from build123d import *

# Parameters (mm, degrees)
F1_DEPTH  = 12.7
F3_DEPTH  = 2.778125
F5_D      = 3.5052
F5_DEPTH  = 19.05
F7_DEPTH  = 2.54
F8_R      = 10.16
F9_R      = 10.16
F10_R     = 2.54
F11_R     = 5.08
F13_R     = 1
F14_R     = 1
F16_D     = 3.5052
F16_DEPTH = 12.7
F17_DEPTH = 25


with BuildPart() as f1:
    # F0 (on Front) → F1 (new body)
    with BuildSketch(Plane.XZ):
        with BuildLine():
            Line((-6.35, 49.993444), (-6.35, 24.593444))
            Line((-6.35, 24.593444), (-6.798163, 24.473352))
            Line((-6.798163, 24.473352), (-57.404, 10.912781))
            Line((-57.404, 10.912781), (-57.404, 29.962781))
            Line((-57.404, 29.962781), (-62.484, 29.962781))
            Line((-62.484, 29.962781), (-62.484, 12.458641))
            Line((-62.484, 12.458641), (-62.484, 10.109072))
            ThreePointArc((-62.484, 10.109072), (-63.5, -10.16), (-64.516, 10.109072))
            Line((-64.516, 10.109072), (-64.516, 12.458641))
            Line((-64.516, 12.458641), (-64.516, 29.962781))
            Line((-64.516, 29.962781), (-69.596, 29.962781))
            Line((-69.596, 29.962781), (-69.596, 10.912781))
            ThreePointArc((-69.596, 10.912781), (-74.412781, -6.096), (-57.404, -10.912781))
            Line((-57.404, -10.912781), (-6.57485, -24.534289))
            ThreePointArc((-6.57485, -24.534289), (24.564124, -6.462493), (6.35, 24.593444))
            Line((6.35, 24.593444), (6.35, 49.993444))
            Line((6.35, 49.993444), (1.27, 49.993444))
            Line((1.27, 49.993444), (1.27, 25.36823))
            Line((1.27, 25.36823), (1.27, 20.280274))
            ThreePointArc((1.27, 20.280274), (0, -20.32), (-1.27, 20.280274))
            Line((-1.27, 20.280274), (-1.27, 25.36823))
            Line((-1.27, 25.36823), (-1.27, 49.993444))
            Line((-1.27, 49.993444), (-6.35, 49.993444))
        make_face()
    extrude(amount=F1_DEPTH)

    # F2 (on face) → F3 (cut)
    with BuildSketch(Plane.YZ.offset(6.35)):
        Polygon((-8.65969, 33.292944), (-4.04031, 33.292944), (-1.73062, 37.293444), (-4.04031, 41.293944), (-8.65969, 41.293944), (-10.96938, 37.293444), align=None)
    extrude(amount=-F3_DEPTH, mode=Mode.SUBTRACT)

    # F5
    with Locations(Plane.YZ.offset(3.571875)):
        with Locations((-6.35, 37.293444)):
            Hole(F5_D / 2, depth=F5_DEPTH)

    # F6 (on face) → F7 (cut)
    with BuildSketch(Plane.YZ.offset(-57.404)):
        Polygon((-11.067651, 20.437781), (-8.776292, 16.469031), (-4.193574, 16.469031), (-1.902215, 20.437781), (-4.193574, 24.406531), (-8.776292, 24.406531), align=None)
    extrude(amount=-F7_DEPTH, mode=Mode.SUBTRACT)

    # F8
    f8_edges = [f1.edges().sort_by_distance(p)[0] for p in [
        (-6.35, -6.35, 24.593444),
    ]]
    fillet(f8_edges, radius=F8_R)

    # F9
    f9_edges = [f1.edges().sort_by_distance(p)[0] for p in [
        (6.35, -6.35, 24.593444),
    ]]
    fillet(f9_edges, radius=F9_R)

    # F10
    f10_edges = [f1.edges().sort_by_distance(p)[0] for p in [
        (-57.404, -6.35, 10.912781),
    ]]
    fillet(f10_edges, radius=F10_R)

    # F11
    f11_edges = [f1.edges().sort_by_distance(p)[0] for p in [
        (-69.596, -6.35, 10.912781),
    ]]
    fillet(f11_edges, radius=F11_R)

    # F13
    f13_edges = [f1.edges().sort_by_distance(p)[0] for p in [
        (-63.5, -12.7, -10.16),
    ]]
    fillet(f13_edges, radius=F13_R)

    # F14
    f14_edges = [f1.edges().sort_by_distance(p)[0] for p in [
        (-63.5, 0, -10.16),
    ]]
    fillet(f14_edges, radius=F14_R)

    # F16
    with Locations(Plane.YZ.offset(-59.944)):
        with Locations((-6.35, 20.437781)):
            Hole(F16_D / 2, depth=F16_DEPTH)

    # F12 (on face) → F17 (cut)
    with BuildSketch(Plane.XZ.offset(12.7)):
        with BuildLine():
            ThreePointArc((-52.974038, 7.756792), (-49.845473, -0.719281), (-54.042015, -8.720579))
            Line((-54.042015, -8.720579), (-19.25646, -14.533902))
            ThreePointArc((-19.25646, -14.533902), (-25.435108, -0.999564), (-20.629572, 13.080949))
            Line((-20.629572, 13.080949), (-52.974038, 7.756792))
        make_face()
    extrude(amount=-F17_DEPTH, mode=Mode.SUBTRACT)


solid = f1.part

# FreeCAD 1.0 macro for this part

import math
import FreeCAD as App
import Part
import Sketcher

V = App.Vector
Q = App.Units.Quantity


def edges_at(feature, points):
    """Names of the edges that pass closest to the given points."""
    edges = feature.Shape.Edges
    near = lambda p: min(range(len(edges)), key=lambda i: edges[i].distToShape(Part.Vertex(*p))[0])
    return sorted({f"Edge{near(p) + 1}" for p in points})

doc = App.newDocument("Part")
body = doc.addObject("PartDesign::Body", "Body")

sketch1 = body.newObject("Sketcher::SketchObject", "Sketch")
sketch1.AttachmentSupport = (doc.getObject("XZ_Plane"), [""])
sketch1.MapMode = "FlatFace"
sketch1.addGeometry([
    Part.LineSegment(V(-6.35, 49.99, 0), V(-6.35, 24.59, 0)),
    Part.LineSegment(V(-6.35, 24.59, 0), V(-6.8, 24.47, 0)),
    Part.LineSegment(V(-6.8, 24.47, 0), V(-57.4, 10.91, 0)),
    Part.LineSegment(V(-57.4, 10.91, 0), V(-57.4, 29.96, 0)),
    Part.LineSegment(V(-57.4, 29.96, 0), V(-62.48, 29.96, 0)),
    Part.LineSegment(V(-62.48, 29.96, 0), V(-62.48, 10.11, 0)),
    Part.ArcOfCircle(Part.Circle(V(-63.5, 0, 0), V(0, 0, 1), 10.16), math.radians(96), math.radians(444)),
    Part.LineSegment(V(-64.52, 10.11, 0), V(-64.52, 29.96, 0)),
    Part.LineSegment(V(-64.52, 29.96, 0), V(-69.6, 29.96, 0)),
    Part.LineSegment(V(-69.6, 29.96, 0), V(-69.6, 10.91, 0)),
    Part.ArcOfCircle(Part.Circle(V(-63.5, 0, 0), V(0, 0, 1), 12.5), math.radians(119), math.radians(299)),
    Part.LineSegment(V(-57.4, -10.91, 0), V(-6.57, -24.53, 0)),
    Part.ArcOfCircle(Part.Circle(V(0, 0, 0), V(0, 0, 1), 25.4), math.radians(-105), math.radians(76)),
    Part.LineSegment(V(6.35, 24.59, 0), V(6.35, 49.99, 0)),
    Part.LineSegment(V(6.35, 49.99, 0), V(1.27, 49.99, 0)),
    Part.LineSegment(V(1.27, 49.99, 0), V(1.27, 20.28, 0)),
    Part.ArcOfCircle(Part.Circle(V(0, 0, 0), V(0, 0, 1), 20.32), math.radians(94), math.radians(446)),
    Part.LineSegment(V(-1.27, 20.28, 0), V(-1.27, 49.99, 0)),
    Part.LineSegment(V(-1.27, 49.99, 0), V(-6.35, 49.99, 0)),
], False)
sketch1.addConstraint([
    Sketcher.Constraint("Coincident", 0, 2, 1, 1),
    Sketcher.Constraint("Coincident", 1, 2, 2, 1),
    Sketcher.Constraint("Coincident", 2, 2, 3, 1),
    Sketcher.Constraint("Coincident", 3, 2, 4, 1),
    Sketcher.Constraint("Coincident", 4, 2, 5, 1),
    Sketcher.Constraint("Coincident", 5, 2, 6, 2),
    Sketcher.Constraint("Coincident", 6, 1, 7, 1),
    Sketcher.Constraint("Coincident", 7, 2, 8, 1),
    Sketcher.Constraint("Coincident", 8, 2, 9, 1),
    Sketcher.Constraint("Coincident", 9, 2, 10, 1),
    Sketcher.Constraint("Coincident", 10, 2, 11, 1),
    Sketcher.Constraint("Tangent", 11, 2, 12, 1),
    Sketcher.Constraint("Coincident", 12, 2, 13, 1),
    Sketcher.Constraint("Coincident", 13, 2, 14, 1),
    Sketcher.Constraint("Coincident", 14, 2, 15, 1),
    Sketcher.Constraint("Coincident", 15, 2, 16, 2),
    Sketcher.Constraint("Coincident", 16, 1, 17, 1),
    Sketcher.Constraint("Coincident", 17, 2, 18, 1),
    Sketcher.Constraint("Coincident", 18, 2, 0, 1),
    Sketcher.Constraint("Vertical", 0),
    Sketcher.Constraint("Vertical", 3),
    Sketcher.Constraint("Horizontal", 4),
    Sketcher.Constraint("Vertical", 5),
    Sketcher.Constraint("Vertical", 7),
    Sketcher.Constraint("Horizontal", 8),
    Sketcher.Constraint("Vertical", 9),
    Sketcher.Constraint("Vertical", 13),
    Sketcher.Constraint("Horizontal", 14),
    Sketcher.Constraint("Vertical", 15),
    Sketcher.Constraint("Vertical", 17),
    Sketcher.Constraint("Horizontal", 18),
    Sketcher.Constraint("Coincident", 12, 3, -1, 1),
    Sketcher.Constraint("Coincident", 16, 3, -1, 1),
    Sketcher.Constraint("Coincident", 10, 3, 6, 3),
    Sketcher.Constraint("Symmetric", 0, 2, 12, 2, -2),
    Sketcher.Constraint("Symmetric", 14, 2, 17, 2, -2),
    Sketcher.Constraint("Symmetric", 2, 2, 10, 2, -1),
    Sketcher.Constraint("PointOnObject", 6, 3, -1),
    Sketcher.Constraint("Parallel", 1, 2),
    Sketcher.Constraint("Horizontal", 5, 2, 6, 1),
    Sketcher.Constraint("Horizontal", 4, 2, 7, 2),
    Sketcher.Constraint("Horizontal", 2, 2, 9, 2),
    Sketcher.Constraint("Equal", 8, 14),
    Sketcher.Constraint("Radius", 12, Q("1 in")),
    Sketcher.Constraint("Radius", 6, Q("0.4 in")),
    Sketcher.Constraint("Radius", 16, Q("0.8 in")),
    Sketcher.Constraint("DistanceY", 0, 2, 0, 1, Q("1 in")),
    Sketcher.Constraint("DistanceX", 4, 2, 4, 1, Q("0.2 in")),
    Sketcher.Constraint("DistanceY", 3, 1, 3, 2, Q("0.75 in")),
    Sketcher.Constraint("DistanceX", 6, 3, -1, 1, Q("2.5 in")),
    Sketcher.Constraint("DistanceX", 0, 2, 12, 2, Q("0.5 in")),
    Sketcher.Constraint("DistanceX", 2, 2, -1, 1, Q("2.26 in")),
    Sketcher.Constraint("Radius", 10, Q("12.5 mm")),
    Sketcher.Constraint("Distance", 2, Q("52.391219 mm")),
])
pad1 = body.newObject("PartDesign::Pad", "Pad")
pad1.Profile = sketch1
pad1.Length = Q("0.5 in")

sketch2 = body.newObject("Sketcher::SketchObject", "Sketch001")
sketch2.AttachmentSupport = (doc.getObject("YZ_Plane"), [""])
sketch2.MapMode = "FlatFace"
sketch2.AttachmentOffset = App.Placement(V(0, 0, 0.25 * 25.4), App.Rotation())
sketch2.addGeometry([
    Part.LineSegment(V(-8.7, 33.3, 0), V(-4, 33.3, 0)),
    Part.LineSegment(V(-4, 33.3, 0), V(-1.7, 37.3, 0)),
    Part.LineSegment(V(-1.7, 37.3, 0), V(-4, 41.3, 0)),
    Part.LineSegment(V(-4, 41.3, 0), V(-8.7, 41.3, 0)),
    Part.LineSegment(V(-8.7, 41.3, 0), V(-11, 37.3, 0)),
    Part.LineSegment(V(-11, 37.3, 0), V(-8.7, 33.3, 0)),
], False)
sketch2.addConstraint([
    Sketcher.Constraint("Coincident", 0, 2, 1, 1),
    Sketcher.Constraint("Coincident", 1, 2, 2, 1),
    Sketcher.Constraint("Coincident", 2, 2, 3, 1),
    Sketcher.Constraint("Coincident", 3, 2, 4, 1),
    Sketcher.Constraint("Coincident", 4, 2, 5, 1),
    Sketcher.Constraint("Coincident", 5, 2, 0, 1),
    Sketcher.Constraint("Horizontal", 0),
    Sketcher.Constraint("Horizontal", 3),
    Sketcher.Constraint("Parallel", 1, 4),
    Sketcher.Constraint("Parallel", 2, 5),
    Sketcher.Constraint("Horizontal", 1, 2, 4, 2),
    Sketcher.Constraint("Vertical", 0, 2, 2, 2),
    Sketcher.Constraint("Vertical", 3, 2, 5, 2),
    Sketcher.Constraint("Angle", 1, Q("59.999997 deg")),
    Sketcher.Constraint("DistanceY", 0, 2, 2, 2, Q("0.315 in")),
    Sketcher.Constraint("DistanceX", 0, 1, 0, 2, Q("4.61938 mm")),
    Sketcher.Constraint("DistanceX", 0, 2, -1, 1, Q("4.04031 mm")),
    Sketcher.Constraint("DistanceY", -1, 1, 0, 2, Q("33.292944 mm")),
])
pocket1 = body.newObject("PartDesign::Pocket", "Pocket")
pocket1.Profile = sketch2
pocket1.Length = Q("0.109375 in")

sketch3 = body.newObject("Sketcher::SketchObject", "Sketch002")
sketch3.AttachmentSupport = (doc.getObject("YZ_Plane"), [""])
sketch3.MapMode = "FlatFace"
sketch3.AttachmentOffset = App.Placement(V(0, 0, 0.140625 * 25.4), App.Rotation())
sketch3.addGeometry(Part.Circle(V(-6.3, 37.3, 0), V(0, 0, 1), 1.8), False)
sketch3.addConstraint([
    Sketcher.Constraint("Diameter", 0, Q("0.138 in")),
    Sketcher.Constraint("DistanceX", 0, 3, -1, 1, Q("0.25 in")),
    Sketcher.Constraint("DistanceY", -1, 1, 0, 3, Q("37.293444 mm")),
])
doc.recompute()
hole = body.newObject("PartDesign::Hole", "Hole")
hole.Profile = sketch3
hole.ThreadType = "None"
hole.Diameter = Q("0.138 in")
hole.DepthType = "Dimension"
hole.Depth = Q("0.75 in")
hole.DrillPoint = "Flat"

sketch4 = body.newObject("Sketcher::SketchObject", "Sketch003")
sketch4.AttachmentSupport = (doc.getObject("YZ_Plane"), [""])
sketch4.MapMode = "FlatFace"
sketch4.AttachmentOffset = App.Placement(V(0, 0, -2.26 * 25.4), App.Rotation())
sketch4.addGeometry([
    Part.LineSegment(V(-11.1, 20.4, 0), V(-8.8, 16.5, 0)),
    Part.LineSegment(V(-8.8, 16.5, 0), V(-4.2, 16.5, 0)),
    Part.LineSegment(V(-4.2, 16.5, 0), V(-1.9, 20.4, 0)),
    Part.LineSegment(V(-1.9, 20.4, 0), V(-4.2, 24.4, 0)),
    Part.LineSegment(V(-4.2, 24.4, 0), V(-8.8, 24.4, 0)),
    Part.LineSegment(V(-8.8, 24.4, 0), V(-11.1, 20.4, 0)),
], False)
sketch4.addConstraint([
    Sketcher.Constraint("Coincident", 0, 2, 1, 1),
    Sketcher.Constraint("Coincident", 1, 2, 2, 1),
    Sketcher.Constraint("Coincident", 2, 2, 3, 1),
    Sketcher.Constraint("Coincident", 3, 2, 4, 1),
    Sketcher.Constraint("Coincident", 4, 2, 5, 1),
    Sketcher.Constraint("Coincident", 5, 2, 0, 1),
    Sketcher.Constraint("Horizontal", 1),
    Sketcher.Constraint("Horizontal", 4),
    Sketcher.Constraint("Parallel", 0, 3),
    Sketcher.Constraint("Parallel", 2, 5),
    Sketcher.Constraint("Horizontal", 2, 2, 5, 2),
    Sketcher.Constraint("Vertical", 1, 2, 3, 2),
    Sketcher.Constraint("Vertical", 0, 2, 4, 2),
    Sketcher.Constraint("Angle", 0, Q("-59.999999 deg")),
    Sketcher.Constraint("DistanceY", 1, 2, 2, 2, Q("0.15625 in")),
    Sketcher.Constraint("DistanceX", 1, 1, 1, 2, Q("4.582718 mm")),
    Sketcher.Constraint("DistanceY", -1, 1, 0, 2, Q("16.469031 mm")),
    Sketcher.Constraint("DistanceX", 5, 2, -1, 1, Q("11.067651 mm")),
])
pocket2 = body.newObject("PartDesign::Pocket", "Pocket001")
pocket2.Profile = sketch4
pocket2.Length = Q("0.1 in")
doc.recompute()

fillet = body.newObject("PartDesign::Fillet", "Fillet")
fillet.Base = (pocket2, edges_at(pocket2, [(-6.35, -6.35, 24.593)]))
fillet.Radius = Q("0.4 in")
doc.recompute()

fillet2 = body.newObject("PartDesign::Fillet", "Fillet001")
fillet2.Base = (fillet, edges_at(fillet, [(6.35, -6.35, 24.593)]))
fillet2.Radius = Q("0.4 in")
doc.recompute()

fillet3 = body.newObject("PartDesign::Fillet", "Fillet002")
fillet3.Base = (fillet2, edges_at(fillet2, [(-57.404, -6.35, 10.913)]))
fillet3.Radius = Q("0.1 in")
doc.recompute()

fillet4 = body.newObject("PartDesign::Fillet", "Fillet003")
fillet4.Base = (fillet3, edges_at(fillet3, [(-69.596, -6.35, 10.913)]))
fillet4.Radius = Q("0.2 in")
doc.recompute()

fillet5 = body.newObject("PartDesign::Fillet", "Fillet004")
fillet5.Base = (fillet4, edges_at(fillet4, [(-63.5, -12.7, -10.16)]))
fillet5.Radius = 1
doc.recompute()

fillet6 = body.newObject("PartDesign::Fillet", "Fillet005")
fillet6.Base = (fillet5, edges_at(fillet5, [(-63.5, 0, -10.16)]))
fillet6.Radius = 1

sketch5 = body.newObject("Sketcher::SketchObject", "Sketch004")
sketch5.AttachmentSupport = (doc.getObject("YZ_Plane"), [""])
sketch5.MapMode = "FlatFace"
sketch5.AttachmentOffset = App.Placement(V(0, 0, -2.36 * 25.4), App.Rotation())
sketch5.addGeometry(Part.Circle(V(-6.3, 20.4, 0), V(0, 0, 1), 1.8), False)
sketch5.addConstraint([
    Sketcher.Constraint("Diameter", 0, Q("0.138 in")),
    Sketcher.Constraint("DistanceX", 0, 3, -1, 1, Q("0.25 in")),
    Sketcher.Constraint("DistanceY", -1, 1, 0, 3, Q("20.437781 mm")),
])
doc.recompute()
hole2 = body.newObject("PartDesign::Hole", "Hole001")
hole2.Profile = sketch5
hole2.ThreadType = "None"
hole2.Diameter = Q("0.138 in")
hole2.DepthType = "Dimension"
hole2.Depth = Q("0.5 in")
hole2.DrillPoint = "Flat"

sketch6 = body.newObject("Sketcher::SketchObject", "Sketch005")
sketch6.AttachmentSupport = (doc.getObject("XZ_Plane"), [""])
sketch6.MapMode = "FlatFace"
sketch6.AttachmentOffset = App.Placement(V(0, 0, 0.5 * 25.4), App.Rotation())
sketch6.addGeometry([
    Part.ArcOfCircle(Part.Circle(V(-61, 0, 0), V(0, 0, 1), 11), math.radians(-52), math.radians(44)),
    Part.LineSegment(V(-54, -9, 0), V(-19, -15, 0)),
    Part.ArcOfCircle(Part.Circle(V(-5, 0, 0), V(0, 0, 1), 20), math.radians(139), math.radians(226)),
    Part.LineSegment(V(-21, 13, 0), V(-53, 8, 0)),
], False)
sketch6.addConstraint([
    Sketcher.Constraint("Coincident", 0, 1, 1, 1),
    Sketcher.Constraint("Coincident", 1, 2, 2, 2),
    Sketcher.Constraint("Coincident", 2, 1, 3, 1),
    Sketcher.Constraint("Coincident", 3, 2, 0, 2),
    Sketcher.Constraint("PointOnObject", 0, 3, -1),
    Sketcher.Constraint("PointOnObject", 2, 3, -1),
    Sketcher.Constraint("Radius", 2, Q("20.1272 mm")),
    Sketcher.Constraint("Radius", 0, Q("11.120767 mm")),
    Sketcher.Constraint("DistanceY", 1, 2, 0, 3, Q("14.533902 mm")),
    Sketcher.Constraint("DistanceY", 0, 1, -1, 1, Q("8.720579 mm")),
    Sketcher.Constraint("DistanceX", 1, 2, -1, 1, Q("19.25646 mm")),
    Sketcher.Constraint("DistanceX", 2, 1, -1, 1, Q("20.629572 mm")),
    Sketcher.Constraint("DistanceX", 0, 3, 2, 3, Q("55.610211 mm")),
    Sketcher.Constraint("DistanceY", 0, 1, 3, 2, Q("16.477371 mm")),
])
pocket3 = body.newObject("PartDesign::Pocket", "Pocket002")
pocket3.Profile = sketch6
pocket3.Length = 25

doc.recompute()
